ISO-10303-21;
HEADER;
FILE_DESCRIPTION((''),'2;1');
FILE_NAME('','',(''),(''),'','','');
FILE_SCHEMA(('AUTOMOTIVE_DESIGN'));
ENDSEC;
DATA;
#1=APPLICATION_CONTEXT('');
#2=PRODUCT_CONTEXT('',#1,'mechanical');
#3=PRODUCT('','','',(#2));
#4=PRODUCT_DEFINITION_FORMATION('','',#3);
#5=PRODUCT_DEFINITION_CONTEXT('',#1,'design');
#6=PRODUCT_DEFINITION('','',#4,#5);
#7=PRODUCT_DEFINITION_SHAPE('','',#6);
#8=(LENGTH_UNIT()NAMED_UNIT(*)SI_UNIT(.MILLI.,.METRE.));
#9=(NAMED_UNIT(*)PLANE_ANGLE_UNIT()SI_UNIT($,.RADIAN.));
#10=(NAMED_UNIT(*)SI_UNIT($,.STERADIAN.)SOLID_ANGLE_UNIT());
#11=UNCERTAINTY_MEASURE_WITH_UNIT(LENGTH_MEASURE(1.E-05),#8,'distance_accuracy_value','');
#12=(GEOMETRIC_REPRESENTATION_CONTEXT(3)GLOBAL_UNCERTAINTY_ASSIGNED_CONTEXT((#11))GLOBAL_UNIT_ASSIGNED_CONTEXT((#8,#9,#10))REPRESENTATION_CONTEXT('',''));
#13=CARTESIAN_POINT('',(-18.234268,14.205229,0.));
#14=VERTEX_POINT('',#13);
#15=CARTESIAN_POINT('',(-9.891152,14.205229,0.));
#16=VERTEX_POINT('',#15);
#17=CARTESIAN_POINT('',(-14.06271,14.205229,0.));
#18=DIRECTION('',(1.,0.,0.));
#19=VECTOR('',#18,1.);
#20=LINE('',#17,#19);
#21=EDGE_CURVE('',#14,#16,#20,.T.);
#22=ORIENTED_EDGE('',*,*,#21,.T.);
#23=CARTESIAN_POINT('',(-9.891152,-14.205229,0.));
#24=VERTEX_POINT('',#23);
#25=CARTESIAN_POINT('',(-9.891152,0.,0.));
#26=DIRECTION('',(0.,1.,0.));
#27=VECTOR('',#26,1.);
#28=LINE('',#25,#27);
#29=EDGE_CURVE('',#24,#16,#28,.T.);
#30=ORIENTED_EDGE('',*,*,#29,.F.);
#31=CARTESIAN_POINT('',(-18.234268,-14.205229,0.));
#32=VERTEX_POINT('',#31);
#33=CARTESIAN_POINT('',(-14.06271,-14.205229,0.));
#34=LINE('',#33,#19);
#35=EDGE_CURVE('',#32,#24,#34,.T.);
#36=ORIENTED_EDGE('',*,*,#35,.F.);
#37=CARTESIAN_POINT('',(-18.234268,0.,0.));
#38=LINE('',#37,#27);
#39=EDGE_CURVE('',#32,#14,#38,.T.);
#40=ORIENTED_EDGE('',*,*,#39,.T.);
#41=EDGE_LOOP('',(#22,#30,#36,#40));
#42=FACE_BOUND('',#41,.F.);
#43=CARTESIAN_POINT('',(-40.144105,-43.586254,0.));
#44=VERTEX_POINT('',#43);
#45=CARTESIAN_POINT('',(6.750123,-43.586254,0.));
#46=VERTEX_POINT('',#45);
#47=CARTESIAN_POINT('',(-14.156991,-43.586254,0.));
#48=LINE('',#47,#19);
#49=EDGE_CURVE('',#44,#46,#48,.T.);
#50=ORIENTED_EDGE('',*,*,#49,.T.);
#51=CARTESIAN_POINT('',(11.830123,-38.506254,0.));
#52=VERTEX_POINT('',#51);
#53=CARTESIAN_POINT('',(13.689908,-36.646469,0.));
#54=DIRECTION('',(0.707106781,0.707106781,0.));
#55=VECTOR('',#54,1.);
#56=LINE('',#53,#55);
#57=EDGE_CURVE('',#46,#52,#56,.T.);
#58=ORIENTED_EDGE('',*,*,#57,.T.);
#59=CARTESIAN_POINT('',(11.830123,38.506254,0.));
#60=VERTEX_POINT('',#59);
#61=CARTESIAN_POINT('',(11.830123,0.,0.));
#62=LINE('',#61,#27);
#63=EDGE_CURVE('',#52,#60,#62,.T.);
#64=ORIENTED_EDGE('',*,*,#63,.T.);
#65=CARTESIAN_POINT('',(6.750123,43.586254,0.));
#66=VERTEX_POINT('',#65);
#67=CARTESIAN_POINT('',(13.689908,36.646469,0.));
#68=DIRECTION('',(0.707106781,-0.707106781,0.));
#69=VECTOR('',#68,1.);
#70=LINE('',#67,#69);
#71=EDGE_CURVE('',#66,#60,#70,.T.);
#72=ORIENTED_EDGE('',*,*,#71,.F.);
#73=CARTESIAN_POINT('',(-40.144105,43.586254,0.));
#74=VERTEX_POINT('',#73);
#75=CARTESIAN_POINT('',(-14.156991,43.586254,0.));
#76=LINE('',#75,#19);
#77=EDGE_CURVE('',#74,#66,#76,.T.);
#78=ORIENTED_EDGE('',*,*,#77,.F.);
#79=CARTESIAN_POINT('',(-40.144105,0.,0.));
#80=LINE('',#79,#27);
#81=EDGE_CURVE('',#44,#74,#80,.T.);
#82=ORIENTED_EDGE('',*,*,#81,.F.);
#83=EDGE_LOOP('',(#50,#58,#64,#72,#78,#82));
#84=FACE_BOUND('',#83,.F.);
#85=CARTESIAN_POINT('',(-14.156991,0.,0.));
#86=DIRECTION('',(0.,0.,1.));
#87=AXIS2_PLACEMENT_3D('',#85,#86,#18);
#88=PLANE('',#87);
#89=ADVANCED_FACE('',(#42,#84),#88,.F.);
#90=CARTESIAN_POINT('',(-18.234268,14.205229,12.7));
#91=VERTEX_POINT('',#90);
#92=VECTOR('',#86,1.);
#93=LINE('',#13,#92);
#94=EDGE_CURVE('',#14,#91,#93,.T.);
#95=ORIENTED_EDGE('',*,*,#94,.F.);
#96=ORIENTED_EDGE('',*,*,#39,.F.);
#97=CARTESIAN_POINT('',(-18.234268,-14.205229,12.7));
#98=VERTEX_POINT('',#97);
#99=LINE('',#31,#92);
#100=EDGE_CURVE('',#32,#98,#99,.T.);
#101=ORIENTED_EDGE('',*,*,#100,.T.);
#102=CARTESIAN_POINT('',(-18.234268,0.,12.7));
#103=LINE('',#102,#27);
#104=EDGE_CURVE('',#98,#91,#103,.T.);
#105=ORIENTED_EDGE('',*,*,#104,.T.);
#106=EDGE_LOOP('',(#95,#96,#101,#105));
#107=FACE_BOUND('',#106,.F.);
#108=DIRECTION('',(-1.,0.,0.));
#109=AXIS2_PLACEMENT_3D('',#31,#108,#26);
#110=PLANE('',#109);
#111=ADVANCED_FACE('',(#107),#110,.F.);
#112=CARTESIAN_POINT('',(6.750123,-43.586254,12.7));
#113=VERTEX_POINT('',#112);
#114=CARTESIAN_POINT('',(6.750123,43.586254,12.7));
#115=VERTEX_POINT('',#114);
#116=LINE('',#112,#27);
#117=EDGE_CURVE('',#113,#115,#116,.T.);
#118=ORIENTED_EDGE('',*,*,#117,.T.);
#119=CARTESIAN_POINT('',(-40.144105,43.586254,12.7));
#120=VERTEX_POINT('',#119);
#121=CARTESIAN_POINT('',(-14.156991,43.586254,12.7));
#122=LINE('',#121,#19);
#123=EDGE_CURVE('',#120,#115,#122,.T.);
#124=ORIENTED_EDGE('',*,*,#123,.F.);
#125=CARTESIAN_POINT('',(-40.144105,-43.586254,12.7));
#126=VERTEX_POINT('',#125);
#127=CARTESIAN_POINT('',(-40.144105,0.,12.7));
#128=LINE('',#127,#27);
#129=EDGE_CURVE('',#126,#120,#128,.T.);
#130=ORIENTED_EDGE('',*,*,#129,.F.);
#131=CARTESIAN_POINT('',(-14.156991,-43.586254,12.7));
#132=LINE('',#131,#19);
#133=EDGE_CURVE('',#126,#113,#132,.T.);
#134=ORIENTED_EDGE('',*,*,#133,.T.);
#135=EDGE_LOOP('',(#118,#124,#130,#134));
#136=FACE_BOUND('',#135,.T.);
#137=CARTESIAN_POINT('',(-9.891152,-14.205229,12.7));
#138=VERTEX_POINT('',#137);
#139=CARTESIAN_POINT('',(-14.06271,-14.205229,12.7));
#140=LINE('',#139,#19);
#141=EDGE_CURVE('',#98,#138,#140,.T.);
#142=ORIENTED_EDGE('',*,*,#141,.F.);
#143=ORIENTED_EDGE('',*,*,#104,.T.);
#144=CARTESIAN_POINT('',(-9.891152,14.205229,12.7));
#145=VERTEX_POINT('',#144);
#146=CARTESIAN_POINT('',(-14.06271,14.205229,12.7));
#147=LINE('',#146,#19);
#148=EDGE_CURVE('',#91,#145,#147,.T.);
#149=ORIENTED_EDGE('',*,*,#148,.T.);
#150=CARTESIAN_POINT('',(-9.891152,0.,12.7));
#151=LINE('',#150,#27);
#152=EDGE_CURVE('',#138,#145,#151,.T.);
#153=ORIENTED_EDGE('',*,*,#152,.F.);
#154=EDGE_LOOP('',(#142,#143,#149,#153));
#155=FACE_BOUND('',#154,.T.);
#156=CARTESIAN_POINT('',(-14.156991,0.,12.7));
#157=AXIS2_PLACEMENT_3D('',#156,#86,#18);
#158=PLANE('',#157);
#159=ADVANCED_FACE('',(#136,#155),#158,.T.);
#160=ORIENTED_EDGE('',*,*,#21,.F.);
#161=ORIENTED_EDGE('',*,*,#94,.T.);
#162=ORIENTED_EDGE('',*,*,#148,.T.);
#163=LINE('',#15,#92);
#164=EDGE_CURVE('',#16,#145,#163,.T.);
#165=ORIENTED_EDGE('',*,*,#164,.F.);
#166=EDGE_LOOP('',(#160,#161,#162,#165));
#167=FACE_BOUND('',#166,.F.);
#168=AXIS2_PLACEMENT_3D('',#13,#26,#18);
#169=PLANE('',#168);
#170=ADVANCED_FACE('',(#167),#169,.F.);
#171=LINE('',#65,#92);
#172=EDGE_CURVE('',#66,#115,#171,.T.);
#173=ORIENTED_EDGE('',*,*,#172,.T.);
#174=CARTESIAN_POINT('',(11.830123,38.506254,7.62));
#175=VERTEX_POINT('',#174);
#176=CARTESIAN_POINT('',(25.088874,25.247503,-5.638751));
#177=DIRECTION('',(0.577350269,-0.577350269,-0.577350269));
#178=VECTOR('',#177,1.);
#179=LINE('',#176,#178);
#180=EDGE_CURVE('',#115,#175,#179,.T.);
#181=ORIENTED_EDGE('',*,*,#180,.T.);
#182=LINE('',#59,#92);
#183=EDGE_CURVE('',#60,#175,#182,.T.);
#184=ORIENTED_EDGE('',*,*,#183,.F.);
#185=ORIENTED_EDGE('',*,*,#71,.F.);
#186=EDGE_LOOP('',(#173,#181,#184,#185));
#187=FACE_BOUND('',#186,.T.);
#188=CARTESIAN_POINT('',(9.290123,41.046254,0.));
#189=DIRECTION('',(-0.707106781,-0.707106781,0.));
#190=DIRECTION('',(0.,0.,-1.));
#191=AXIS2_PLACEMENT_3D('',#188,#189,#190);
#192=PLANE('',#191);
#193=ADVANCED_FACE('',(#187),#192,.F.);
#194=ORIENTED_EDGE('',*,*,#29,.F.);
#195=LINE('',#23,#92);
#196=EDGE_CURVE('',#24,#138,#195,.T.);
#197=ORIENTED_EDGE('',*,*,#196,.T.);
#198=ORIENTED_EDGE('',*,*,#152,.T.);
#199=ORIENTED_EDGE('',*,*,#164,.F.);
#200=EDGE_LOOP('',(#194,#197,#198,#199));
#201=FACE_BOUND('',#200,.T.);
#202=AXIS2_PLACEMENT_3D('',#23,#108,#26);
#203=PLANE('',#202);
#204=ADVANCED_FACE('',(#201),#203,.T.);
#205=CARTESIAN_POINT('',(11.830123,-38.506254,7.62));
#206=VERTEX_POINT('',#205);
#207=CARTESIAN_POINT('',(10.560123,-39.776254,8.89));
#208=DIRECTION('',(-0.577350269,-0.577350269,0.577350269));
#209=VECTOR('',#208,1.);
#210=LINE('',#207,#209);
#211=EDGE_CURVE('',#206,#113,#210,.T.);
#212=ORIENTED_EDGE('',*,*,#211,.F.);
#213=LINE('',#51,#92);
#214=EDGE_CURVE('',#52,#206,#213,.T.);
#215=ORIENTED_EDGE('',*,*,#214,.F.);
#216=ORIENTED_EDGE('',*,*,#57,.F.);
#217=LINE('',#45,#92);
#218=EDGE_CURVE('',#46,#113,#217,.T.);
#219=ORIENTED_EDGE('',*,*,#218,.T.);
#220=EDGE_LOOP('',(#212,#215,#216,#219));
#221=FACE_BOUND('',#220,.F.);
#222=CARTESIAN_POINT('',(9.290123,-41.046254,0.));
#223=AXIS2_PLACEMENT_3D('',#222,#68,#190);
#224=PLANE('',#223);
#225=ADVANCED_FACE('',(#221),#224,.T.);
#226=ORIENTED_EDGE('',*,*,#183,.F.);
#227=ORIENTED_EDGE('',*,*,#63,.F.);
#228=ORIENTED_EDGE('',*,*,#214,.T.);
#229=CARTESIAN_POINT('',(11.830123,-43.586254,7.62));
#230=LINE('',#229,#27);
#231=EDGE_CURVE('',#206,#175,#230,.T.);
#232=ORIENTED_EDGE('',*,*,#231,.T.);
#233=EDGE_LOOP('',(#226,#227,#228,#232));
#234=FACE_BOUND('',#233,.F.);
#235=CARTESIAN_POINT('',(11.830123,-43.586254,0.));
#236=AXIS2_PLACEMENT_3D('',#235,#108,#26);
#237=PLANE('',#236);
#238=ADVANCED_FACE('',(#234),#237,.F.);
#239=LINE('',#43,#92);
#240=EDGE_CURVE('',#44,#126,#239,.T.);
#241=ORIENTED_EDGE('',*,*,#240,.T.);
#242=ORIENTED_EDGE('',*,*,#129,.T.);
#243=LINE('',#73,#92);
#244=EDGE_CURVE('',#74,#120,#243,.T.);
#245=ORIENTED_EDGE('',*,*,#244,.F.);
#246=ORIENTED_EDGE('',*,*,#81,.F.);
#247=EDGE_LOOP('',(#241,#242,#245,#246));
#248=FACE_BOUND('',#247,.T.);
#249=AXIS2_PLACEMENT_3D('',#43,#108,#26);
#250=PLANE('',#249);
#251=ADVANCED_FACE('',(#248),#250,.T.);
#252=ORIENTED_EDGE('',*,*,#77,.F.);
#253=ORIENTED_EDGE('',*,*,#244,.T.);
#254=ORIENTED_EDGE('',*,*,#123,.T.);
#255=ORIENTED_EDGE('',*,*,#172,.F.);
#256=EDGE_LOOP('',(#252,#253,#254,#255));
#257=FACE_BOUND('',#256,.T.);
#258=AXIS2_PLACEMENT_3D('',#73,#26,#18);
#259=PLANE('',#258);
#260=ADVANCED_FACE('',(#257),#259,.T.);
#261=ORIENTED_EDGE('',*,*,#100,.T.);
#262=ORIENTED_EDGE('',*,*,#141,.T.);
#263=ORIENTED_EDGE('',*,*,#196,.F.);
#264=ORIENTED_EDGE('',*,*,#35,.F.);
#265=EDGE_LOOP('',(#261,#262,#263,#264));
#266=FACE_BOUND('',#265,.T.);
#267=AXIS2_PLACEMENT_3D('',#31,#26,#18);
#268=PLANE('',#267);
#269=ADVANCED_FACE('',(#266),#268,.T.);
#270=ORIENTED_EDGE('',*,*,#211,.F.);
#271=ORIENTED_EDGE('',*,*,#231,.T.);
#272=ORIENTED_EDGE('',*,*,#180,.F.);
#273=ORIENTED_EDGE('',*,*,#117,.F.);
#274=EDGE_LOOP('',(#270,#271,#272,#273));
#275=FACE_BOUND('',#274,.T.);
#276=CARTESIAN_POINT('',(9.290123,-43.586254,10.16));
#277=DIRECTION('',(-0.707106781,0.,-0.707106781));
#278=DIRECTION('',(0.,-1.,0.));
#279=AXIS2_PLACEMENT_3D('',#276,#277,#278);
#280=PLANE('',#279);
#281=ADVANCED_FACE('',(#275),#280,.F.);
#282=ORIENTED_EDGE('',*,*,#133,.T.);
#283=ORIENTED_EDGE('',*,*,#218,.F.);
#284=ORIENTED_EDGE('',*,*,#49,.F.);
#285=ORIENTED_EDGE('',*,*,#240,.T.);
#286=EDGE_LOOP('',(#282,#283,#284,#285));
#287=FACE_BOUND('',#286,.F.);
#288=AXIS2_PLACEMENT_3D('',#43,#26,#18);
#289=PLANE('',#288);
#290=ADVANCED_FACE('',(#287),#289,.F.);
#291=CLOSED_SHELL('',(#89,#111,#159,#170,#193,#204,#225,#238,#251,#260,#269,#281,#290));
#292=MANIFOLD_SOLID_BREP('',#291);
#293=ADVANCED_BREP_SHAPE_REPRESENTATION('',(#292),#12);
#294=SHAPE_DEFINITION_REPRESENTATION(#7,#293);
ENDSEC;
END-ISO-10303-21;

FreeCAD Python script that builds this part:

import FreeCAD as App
import Part
import Sketcher
from FreeCAD import Vector
Q = App.Units.Quantity


def edges_at(feature, points):
    """Names of the edges that pass closest to the given points."""
    edges = feature.Shape.Edges
    near = lambda p: min(range(len(edges)), key=lambda i: edges[i].distToShape(Part.Vertex(*p))[0])
    return sorted({f"Edge{near(p) + 1}" for p in points})


def add_polygon(sketch, points):
    """Adds a closed chain of lines whose ends are joined by coincident constraints."""
    first, n = sketch.GeometryCount, len(points)
    for a, b in zip(points, points[1:] + points[:1]):
        sketch.addGeometry(Part.LineSegment(App.Vector(*a, 0), App.Vector(*b, 0)), False)
    for i in range(n):
        sketch.addConstraint(Sketcher.Constraint("Coincident", first + i, 2, first + (i + 1) % n, 1))

doc = App.newDocument("Part")
params = doc.addObject("Spreadsheet::Sheet", "Params")
for row, (alias, value) in enumerate([
    ("pad1_length", "0.5 in"),
    ("chamfer_size", "0.2 in"),
], start=1):
    params.set(f"A{row}", alias)
    params.set(f"B{row}", "=" + value)
    params.setAlias(f"B{row}", alias)

body = doc.addObject("PartDesign::Body", "Body")

# Sketch on XY plane
sketch1 = body.newObject("Sketcher::SketchObject", "Sketch")
sketch1.AttachmentSupport = (doc.getObject("XY_Plane"), [""])
sketch1.MapMode = "FlatFace"
add_polygon(sketch1, [(-40, 44), (-40, -44), (12, -44), (12, 44)])  # lines 0-3
add_polygon(sketch1, [(-10, -14), (-18, -14), (-18, 14), (-10, 14)])  # lines 4-7
sketch1.addConstraint([
    Sketcher.Constraint("Vertical", 0),
    Sketcher.Constraint("Horizontal", 1),
    Sketcher.Constraint("Vertical", 2),
    Sketcher.Constraint("Horizontal", 3),
    Sketcher.Constraint("Horizontal", 4),
    Sketcher.Constraint("Vertical", 5),
    Sketcher.Constraint("Horizontal", 6),
    Sketcher.Constraint("Vertical", 7),
    Sketcher.Constraint("DistanceX", 1, 1, 1, 2, Q("51.974228 mm")),
    Sketcher.Constraint("DistanceX", 4, 2, 4, 1, Q("8.343116 mm")),
    Sketcher.Constraint("DistanceY", 0, 2, 0, 1, Q("87.172508 mm")),
    Sketcher.Constraint("DistanceY", 5, 1, 5, 2, Q("28.410458 mm")),
    Sketcher.Constraint("DistanceX", 4, 2, -1, 1, Q("18.234268 mm")),
    Sketcher.Constraint("DistanceY", 4, 2, -1, 1, Q("14.205229 mm")),
    Sketcher.Constraint("DistanceX", 4, 2, 1, 2, Q("30.064391 mm")),
    Sketcher.Constraint("DistanceY", 0, 2, -1, 1, Q("43.586254 mm")),
])
pad1 = body.newObject("PartDesign::Pad", "Pad")
pad1.Profile = sketch1
pad1.setExpression("Length", "Params.pad1_length")
doc.recompute()

chamfer = body.newObject("PartDesign::Chamfer", "Chamfer")
chamfer.Base = (pad1, edges_at(pad1, [(11.83, 43.586, 6.35), (11.83, 0, 12.7), (11.83, -43.586, 6.35)]))
chamfer.setExpression("Size", "Params.chamfer_size")

doc.recompute()
